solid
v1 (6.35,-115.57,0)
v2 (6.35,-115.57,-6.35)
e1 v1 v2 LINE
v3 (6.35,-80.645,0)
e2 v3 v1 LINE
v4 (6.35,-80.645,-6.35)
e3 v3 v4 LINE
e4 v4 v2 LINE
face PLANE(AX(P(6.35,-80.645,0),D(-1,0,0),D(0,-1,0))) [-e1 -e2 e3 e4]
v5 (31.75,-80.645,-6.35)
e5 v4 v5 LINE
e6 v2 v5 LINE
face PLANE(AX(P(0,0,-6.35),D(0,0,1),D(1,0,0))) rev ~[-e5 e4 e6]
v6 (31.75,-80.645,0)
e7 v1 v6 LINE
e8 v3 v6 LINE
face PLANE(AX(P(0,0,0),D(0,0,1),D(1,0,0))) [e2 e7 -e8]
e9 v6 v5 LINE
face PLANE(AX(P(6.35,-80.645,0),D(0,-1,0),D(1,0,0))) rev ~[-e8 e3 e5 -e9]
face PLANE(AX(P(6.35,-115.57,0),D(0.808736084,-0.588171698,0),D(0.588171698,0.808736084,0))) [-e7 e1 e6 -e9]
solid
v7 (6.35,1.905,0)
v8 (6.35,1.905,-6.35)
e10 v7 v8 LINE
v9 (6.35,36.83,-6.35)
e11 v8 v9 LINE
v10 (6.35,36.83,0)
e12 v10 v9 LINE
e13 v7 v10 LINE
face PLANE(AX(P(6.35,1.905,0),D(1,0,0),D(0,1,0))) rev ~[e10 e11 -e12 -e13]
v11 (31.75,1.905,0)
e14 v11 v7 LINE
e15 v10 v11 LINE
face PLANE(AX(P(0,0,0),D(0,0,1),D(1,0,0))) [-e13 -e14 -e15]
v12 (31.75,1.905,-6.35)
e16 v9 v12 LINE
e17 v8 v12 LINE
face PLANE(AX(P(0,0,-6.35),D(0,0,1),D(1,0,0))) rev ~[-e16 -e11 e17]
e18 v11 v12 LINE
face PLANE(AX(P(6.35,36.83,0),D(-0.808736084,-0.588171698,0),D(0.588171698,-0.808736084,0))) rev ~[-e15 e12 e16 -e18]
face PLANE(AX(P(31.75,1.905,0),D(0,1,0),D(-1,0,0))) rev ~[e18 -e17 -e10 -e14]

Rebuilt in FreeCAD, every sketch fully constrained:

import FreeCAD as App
import Part
import Sketcher
from FreeCAD import Vector
Q = App.Units.Quantity


def add_polygon(sketch, points):
    """Adds a closed chain of lines whose ends are joined by coincident constraints."""
    first, n = sketch.GeometryCount, len(points)
    for a, b in zip(points, points[1:] + points[:1]):
        sketch.addGeometry(Part.LineSegment(App.Vector(*a, 0), App.Vector(*b, 0)), False)
    for i in range(n):
        sketch.addConstraint(Sketcher.Constraint("Coincident", first + i, 2, first + (i + 1) % n, 1))

doc = App.newDocument("Part")
body = doc.addObject("PartDesign::Body", "Body")
body.AllowCompound = True

sketch1 = body.newObject("Sketcher::SketchObject", "Sketch")
sketch1.AttachmentSupport = (doc.getObject("XY_Plane"), [""])
sketch1.MapMode = "FlatFace"
add_polygon(sketch1, [(6, 2), (32, 2), (6, 37)])
add_polygon(sketch1, [(32, -81), (6, -81), (6, -116)])
sketch1.addConstraint([
    Sketcher.Constraint("Horizontal", 0),
    Sketcher.Constraint("Vertical", 2),
    Sketcher.Constraint("Horizontal", 3),
    Sketcher.Constraint("Vertical", 4),
    Sketcher.Constraint("Vertical", 2, 2, 3, 2),
    Sketcher.Constraint("Vertical", 0, 2, 5, 2),
    Sketcher.Constraint("Equal", 2, 4),
    Sketcher.Constraint("DistanceX", 0, 1, 0, 2, Q("1 in")),
    Sketcher.Constraint("DistanceY", 4, 2, 1, 2, Q("6 in")),
    Sketcher.Constraint("DistanceY", 2, 2, 2, 1, Q("1.375 in")),
    Sketcher.Constraint("DistanceX", -1, 1, 0, 2, Q("1.25 in")),
    Sketcher.Constraint("DistanceY", -1, 1, 1, 2, Q("1.45 in")),
])
pad1 = body.newObject("PartDesign::Pad", "Pad")
pad1.Profile = sketch1
pad1.Length = Q("0.25 in")
pad1.Reversed = True

doc.recompute()
